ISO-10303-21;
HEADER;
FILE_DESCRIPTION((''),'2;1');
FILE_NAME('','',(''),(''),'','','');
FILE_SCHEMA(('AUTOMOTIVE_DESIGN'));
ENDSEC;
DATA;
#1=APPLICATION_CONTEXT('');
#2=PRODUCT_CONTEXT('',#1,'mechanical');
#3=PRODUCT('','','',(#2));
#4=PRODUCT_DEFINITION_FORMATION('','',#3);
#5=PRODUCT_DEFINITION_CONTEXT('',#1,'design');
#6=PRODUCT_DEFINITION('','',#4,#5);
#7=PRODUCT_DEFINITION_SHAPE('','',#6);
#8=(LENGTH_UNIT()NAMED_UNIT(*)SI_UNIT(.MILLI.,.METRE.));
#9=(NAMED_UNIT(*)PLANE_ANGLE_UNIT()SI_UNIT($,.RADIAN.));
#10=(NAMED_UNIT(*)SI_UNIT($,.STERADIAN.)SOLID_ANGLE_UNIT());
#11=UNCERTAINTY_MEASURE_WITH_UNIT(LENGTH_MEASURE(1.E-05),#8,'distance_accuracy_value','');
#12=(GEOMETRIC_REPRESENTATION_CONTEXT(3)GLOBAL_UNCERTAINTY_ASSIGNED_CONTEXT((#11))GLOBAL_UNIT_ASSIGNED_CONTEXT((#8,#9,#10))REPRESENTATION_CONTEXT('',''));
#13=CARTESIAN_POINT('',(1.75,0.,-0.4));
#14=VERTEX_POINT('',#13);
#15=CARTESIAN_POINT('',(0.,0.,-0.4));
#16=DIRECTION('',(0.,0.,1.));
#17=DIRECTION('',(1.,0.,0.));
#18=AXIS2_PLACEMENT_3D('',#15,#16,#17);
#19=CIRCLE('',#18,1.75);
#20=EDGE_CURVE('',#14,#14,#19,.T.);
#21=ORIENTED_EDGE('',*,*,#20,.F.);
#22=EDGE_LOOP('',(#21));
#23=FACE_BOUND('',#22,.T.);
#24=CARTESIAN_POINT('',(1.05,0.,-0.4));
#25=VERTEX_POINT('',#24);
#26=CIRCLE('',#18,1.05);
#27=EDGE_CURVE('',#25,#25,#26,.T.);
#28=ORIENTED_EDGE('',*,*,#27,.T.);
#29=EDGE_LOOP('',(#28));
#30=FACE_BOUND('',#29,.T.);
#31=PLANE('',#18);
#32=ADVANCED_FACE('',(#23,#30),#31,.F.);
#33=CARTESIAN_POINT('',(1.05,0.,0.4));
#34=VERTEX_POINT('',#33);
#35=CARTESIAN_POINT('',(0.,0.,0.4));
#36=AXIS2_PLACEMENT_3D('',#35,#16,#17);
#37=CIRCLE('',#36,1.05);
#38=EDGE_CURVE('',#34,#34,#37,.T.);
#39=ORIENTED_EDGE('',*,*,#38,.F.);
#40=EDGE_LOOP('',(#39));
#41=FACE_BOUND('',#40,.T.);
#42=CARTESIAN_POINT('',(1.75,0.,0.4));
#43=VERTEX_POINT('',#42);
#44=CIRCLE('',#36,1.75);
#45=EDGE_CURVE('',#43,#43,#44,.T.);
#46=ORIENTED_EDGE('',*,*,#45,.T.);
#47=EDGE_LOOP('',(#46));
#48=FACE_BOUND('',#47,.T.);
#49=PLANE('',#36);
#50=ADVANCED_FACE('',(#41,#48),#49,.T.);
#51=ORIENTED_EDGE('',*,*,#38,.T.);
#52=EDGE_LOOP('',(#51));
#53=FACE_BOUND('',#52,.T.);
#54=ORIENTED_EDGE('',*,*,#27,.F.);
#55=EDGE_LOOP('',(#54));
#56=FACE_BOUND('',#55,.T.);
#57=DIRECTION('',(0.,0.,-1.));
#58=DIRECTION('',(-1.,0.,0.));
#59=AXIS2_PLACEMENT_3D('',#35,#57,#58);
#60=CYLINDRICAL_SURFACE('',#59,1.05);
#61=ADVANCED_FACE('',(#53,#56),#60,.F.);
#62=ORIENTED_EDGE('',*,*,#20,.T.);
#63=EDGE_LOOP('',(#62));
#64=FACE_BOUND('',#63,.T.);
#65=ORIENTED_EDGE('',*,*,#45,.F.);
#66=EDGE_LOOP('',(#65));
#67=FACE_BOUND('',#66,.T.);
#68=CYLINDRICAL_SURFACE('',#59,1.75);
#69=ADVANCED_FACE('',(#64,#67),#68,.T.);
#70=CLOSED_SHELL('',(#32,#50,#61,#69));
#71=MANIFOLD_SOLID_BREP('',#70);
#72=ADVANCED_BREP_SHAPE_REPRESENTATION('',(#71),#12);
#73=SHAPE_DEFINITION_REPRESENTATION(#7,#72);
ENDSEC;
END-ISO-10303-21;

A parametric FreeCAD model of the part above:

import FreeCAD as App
import Part
import Sketcher

V = App.Vector

doc = App.newDocument("Part")
params = doc.addObject("Spreadsheet::Sheet", "Params")
for row, (alias, value) in enumerate([
    ("sketch1_diameter", "3.5 mm"),
    ("sketch1_diameter2", "2.1 mm"),
    ("pad1_length", "0.8 mm"),
], start=1):
    params.set(f"A{row}", alias)
    params.set(f"B{row}", "=" + value)
    params.setAlias(f"B{row}", alias)

body = doc.addObject("PartDesign::Body", "Body")

sketch1 = doc.addObject("Sketcher::SketchObject", "Sketch")
body.addObject(sketch1)
sketch1.AttachmentSupport = (doc.XY_Plane, [""])
sketch1.MapMode = "FlatFace"
sketch1.addGeometry(Part.Circle(V(0, 0, 0), V(0, 0, 1), 1.75), False)
sketch1.addGeometry(Part.Circle(V(0, 0, 0), V(0, 0, 1), 1.05), False)
sketch1.addConstraint(Sketcher.Constraint("Coincident", 0, 3, -1, 1))
sketch1.addConstraint(Sketcher.Constraint("Coincident", 1, 3, -1, 1))
sketch1.addConstraint(Sketcher.Constraint("Diameter", 0, 3.5))
sketch1.addConstraint(Sketcher.Constraint("Diameter", 1, 2.1))
sketch1.setExpression("Constraints[2]", "Params.sketch1_diameter")
sketch1.setExpression("Constraints[3]", "Params.sketch1_diameter2")
pad1 = doc.addObject("PartDesign::Pad", "Pad")
body.addObject(pad1)
pad1.Profile = sketch1
pad1.setExpression("Length", "Params.pad1_length")
pad1.Midplane = True

doc.recompute()
